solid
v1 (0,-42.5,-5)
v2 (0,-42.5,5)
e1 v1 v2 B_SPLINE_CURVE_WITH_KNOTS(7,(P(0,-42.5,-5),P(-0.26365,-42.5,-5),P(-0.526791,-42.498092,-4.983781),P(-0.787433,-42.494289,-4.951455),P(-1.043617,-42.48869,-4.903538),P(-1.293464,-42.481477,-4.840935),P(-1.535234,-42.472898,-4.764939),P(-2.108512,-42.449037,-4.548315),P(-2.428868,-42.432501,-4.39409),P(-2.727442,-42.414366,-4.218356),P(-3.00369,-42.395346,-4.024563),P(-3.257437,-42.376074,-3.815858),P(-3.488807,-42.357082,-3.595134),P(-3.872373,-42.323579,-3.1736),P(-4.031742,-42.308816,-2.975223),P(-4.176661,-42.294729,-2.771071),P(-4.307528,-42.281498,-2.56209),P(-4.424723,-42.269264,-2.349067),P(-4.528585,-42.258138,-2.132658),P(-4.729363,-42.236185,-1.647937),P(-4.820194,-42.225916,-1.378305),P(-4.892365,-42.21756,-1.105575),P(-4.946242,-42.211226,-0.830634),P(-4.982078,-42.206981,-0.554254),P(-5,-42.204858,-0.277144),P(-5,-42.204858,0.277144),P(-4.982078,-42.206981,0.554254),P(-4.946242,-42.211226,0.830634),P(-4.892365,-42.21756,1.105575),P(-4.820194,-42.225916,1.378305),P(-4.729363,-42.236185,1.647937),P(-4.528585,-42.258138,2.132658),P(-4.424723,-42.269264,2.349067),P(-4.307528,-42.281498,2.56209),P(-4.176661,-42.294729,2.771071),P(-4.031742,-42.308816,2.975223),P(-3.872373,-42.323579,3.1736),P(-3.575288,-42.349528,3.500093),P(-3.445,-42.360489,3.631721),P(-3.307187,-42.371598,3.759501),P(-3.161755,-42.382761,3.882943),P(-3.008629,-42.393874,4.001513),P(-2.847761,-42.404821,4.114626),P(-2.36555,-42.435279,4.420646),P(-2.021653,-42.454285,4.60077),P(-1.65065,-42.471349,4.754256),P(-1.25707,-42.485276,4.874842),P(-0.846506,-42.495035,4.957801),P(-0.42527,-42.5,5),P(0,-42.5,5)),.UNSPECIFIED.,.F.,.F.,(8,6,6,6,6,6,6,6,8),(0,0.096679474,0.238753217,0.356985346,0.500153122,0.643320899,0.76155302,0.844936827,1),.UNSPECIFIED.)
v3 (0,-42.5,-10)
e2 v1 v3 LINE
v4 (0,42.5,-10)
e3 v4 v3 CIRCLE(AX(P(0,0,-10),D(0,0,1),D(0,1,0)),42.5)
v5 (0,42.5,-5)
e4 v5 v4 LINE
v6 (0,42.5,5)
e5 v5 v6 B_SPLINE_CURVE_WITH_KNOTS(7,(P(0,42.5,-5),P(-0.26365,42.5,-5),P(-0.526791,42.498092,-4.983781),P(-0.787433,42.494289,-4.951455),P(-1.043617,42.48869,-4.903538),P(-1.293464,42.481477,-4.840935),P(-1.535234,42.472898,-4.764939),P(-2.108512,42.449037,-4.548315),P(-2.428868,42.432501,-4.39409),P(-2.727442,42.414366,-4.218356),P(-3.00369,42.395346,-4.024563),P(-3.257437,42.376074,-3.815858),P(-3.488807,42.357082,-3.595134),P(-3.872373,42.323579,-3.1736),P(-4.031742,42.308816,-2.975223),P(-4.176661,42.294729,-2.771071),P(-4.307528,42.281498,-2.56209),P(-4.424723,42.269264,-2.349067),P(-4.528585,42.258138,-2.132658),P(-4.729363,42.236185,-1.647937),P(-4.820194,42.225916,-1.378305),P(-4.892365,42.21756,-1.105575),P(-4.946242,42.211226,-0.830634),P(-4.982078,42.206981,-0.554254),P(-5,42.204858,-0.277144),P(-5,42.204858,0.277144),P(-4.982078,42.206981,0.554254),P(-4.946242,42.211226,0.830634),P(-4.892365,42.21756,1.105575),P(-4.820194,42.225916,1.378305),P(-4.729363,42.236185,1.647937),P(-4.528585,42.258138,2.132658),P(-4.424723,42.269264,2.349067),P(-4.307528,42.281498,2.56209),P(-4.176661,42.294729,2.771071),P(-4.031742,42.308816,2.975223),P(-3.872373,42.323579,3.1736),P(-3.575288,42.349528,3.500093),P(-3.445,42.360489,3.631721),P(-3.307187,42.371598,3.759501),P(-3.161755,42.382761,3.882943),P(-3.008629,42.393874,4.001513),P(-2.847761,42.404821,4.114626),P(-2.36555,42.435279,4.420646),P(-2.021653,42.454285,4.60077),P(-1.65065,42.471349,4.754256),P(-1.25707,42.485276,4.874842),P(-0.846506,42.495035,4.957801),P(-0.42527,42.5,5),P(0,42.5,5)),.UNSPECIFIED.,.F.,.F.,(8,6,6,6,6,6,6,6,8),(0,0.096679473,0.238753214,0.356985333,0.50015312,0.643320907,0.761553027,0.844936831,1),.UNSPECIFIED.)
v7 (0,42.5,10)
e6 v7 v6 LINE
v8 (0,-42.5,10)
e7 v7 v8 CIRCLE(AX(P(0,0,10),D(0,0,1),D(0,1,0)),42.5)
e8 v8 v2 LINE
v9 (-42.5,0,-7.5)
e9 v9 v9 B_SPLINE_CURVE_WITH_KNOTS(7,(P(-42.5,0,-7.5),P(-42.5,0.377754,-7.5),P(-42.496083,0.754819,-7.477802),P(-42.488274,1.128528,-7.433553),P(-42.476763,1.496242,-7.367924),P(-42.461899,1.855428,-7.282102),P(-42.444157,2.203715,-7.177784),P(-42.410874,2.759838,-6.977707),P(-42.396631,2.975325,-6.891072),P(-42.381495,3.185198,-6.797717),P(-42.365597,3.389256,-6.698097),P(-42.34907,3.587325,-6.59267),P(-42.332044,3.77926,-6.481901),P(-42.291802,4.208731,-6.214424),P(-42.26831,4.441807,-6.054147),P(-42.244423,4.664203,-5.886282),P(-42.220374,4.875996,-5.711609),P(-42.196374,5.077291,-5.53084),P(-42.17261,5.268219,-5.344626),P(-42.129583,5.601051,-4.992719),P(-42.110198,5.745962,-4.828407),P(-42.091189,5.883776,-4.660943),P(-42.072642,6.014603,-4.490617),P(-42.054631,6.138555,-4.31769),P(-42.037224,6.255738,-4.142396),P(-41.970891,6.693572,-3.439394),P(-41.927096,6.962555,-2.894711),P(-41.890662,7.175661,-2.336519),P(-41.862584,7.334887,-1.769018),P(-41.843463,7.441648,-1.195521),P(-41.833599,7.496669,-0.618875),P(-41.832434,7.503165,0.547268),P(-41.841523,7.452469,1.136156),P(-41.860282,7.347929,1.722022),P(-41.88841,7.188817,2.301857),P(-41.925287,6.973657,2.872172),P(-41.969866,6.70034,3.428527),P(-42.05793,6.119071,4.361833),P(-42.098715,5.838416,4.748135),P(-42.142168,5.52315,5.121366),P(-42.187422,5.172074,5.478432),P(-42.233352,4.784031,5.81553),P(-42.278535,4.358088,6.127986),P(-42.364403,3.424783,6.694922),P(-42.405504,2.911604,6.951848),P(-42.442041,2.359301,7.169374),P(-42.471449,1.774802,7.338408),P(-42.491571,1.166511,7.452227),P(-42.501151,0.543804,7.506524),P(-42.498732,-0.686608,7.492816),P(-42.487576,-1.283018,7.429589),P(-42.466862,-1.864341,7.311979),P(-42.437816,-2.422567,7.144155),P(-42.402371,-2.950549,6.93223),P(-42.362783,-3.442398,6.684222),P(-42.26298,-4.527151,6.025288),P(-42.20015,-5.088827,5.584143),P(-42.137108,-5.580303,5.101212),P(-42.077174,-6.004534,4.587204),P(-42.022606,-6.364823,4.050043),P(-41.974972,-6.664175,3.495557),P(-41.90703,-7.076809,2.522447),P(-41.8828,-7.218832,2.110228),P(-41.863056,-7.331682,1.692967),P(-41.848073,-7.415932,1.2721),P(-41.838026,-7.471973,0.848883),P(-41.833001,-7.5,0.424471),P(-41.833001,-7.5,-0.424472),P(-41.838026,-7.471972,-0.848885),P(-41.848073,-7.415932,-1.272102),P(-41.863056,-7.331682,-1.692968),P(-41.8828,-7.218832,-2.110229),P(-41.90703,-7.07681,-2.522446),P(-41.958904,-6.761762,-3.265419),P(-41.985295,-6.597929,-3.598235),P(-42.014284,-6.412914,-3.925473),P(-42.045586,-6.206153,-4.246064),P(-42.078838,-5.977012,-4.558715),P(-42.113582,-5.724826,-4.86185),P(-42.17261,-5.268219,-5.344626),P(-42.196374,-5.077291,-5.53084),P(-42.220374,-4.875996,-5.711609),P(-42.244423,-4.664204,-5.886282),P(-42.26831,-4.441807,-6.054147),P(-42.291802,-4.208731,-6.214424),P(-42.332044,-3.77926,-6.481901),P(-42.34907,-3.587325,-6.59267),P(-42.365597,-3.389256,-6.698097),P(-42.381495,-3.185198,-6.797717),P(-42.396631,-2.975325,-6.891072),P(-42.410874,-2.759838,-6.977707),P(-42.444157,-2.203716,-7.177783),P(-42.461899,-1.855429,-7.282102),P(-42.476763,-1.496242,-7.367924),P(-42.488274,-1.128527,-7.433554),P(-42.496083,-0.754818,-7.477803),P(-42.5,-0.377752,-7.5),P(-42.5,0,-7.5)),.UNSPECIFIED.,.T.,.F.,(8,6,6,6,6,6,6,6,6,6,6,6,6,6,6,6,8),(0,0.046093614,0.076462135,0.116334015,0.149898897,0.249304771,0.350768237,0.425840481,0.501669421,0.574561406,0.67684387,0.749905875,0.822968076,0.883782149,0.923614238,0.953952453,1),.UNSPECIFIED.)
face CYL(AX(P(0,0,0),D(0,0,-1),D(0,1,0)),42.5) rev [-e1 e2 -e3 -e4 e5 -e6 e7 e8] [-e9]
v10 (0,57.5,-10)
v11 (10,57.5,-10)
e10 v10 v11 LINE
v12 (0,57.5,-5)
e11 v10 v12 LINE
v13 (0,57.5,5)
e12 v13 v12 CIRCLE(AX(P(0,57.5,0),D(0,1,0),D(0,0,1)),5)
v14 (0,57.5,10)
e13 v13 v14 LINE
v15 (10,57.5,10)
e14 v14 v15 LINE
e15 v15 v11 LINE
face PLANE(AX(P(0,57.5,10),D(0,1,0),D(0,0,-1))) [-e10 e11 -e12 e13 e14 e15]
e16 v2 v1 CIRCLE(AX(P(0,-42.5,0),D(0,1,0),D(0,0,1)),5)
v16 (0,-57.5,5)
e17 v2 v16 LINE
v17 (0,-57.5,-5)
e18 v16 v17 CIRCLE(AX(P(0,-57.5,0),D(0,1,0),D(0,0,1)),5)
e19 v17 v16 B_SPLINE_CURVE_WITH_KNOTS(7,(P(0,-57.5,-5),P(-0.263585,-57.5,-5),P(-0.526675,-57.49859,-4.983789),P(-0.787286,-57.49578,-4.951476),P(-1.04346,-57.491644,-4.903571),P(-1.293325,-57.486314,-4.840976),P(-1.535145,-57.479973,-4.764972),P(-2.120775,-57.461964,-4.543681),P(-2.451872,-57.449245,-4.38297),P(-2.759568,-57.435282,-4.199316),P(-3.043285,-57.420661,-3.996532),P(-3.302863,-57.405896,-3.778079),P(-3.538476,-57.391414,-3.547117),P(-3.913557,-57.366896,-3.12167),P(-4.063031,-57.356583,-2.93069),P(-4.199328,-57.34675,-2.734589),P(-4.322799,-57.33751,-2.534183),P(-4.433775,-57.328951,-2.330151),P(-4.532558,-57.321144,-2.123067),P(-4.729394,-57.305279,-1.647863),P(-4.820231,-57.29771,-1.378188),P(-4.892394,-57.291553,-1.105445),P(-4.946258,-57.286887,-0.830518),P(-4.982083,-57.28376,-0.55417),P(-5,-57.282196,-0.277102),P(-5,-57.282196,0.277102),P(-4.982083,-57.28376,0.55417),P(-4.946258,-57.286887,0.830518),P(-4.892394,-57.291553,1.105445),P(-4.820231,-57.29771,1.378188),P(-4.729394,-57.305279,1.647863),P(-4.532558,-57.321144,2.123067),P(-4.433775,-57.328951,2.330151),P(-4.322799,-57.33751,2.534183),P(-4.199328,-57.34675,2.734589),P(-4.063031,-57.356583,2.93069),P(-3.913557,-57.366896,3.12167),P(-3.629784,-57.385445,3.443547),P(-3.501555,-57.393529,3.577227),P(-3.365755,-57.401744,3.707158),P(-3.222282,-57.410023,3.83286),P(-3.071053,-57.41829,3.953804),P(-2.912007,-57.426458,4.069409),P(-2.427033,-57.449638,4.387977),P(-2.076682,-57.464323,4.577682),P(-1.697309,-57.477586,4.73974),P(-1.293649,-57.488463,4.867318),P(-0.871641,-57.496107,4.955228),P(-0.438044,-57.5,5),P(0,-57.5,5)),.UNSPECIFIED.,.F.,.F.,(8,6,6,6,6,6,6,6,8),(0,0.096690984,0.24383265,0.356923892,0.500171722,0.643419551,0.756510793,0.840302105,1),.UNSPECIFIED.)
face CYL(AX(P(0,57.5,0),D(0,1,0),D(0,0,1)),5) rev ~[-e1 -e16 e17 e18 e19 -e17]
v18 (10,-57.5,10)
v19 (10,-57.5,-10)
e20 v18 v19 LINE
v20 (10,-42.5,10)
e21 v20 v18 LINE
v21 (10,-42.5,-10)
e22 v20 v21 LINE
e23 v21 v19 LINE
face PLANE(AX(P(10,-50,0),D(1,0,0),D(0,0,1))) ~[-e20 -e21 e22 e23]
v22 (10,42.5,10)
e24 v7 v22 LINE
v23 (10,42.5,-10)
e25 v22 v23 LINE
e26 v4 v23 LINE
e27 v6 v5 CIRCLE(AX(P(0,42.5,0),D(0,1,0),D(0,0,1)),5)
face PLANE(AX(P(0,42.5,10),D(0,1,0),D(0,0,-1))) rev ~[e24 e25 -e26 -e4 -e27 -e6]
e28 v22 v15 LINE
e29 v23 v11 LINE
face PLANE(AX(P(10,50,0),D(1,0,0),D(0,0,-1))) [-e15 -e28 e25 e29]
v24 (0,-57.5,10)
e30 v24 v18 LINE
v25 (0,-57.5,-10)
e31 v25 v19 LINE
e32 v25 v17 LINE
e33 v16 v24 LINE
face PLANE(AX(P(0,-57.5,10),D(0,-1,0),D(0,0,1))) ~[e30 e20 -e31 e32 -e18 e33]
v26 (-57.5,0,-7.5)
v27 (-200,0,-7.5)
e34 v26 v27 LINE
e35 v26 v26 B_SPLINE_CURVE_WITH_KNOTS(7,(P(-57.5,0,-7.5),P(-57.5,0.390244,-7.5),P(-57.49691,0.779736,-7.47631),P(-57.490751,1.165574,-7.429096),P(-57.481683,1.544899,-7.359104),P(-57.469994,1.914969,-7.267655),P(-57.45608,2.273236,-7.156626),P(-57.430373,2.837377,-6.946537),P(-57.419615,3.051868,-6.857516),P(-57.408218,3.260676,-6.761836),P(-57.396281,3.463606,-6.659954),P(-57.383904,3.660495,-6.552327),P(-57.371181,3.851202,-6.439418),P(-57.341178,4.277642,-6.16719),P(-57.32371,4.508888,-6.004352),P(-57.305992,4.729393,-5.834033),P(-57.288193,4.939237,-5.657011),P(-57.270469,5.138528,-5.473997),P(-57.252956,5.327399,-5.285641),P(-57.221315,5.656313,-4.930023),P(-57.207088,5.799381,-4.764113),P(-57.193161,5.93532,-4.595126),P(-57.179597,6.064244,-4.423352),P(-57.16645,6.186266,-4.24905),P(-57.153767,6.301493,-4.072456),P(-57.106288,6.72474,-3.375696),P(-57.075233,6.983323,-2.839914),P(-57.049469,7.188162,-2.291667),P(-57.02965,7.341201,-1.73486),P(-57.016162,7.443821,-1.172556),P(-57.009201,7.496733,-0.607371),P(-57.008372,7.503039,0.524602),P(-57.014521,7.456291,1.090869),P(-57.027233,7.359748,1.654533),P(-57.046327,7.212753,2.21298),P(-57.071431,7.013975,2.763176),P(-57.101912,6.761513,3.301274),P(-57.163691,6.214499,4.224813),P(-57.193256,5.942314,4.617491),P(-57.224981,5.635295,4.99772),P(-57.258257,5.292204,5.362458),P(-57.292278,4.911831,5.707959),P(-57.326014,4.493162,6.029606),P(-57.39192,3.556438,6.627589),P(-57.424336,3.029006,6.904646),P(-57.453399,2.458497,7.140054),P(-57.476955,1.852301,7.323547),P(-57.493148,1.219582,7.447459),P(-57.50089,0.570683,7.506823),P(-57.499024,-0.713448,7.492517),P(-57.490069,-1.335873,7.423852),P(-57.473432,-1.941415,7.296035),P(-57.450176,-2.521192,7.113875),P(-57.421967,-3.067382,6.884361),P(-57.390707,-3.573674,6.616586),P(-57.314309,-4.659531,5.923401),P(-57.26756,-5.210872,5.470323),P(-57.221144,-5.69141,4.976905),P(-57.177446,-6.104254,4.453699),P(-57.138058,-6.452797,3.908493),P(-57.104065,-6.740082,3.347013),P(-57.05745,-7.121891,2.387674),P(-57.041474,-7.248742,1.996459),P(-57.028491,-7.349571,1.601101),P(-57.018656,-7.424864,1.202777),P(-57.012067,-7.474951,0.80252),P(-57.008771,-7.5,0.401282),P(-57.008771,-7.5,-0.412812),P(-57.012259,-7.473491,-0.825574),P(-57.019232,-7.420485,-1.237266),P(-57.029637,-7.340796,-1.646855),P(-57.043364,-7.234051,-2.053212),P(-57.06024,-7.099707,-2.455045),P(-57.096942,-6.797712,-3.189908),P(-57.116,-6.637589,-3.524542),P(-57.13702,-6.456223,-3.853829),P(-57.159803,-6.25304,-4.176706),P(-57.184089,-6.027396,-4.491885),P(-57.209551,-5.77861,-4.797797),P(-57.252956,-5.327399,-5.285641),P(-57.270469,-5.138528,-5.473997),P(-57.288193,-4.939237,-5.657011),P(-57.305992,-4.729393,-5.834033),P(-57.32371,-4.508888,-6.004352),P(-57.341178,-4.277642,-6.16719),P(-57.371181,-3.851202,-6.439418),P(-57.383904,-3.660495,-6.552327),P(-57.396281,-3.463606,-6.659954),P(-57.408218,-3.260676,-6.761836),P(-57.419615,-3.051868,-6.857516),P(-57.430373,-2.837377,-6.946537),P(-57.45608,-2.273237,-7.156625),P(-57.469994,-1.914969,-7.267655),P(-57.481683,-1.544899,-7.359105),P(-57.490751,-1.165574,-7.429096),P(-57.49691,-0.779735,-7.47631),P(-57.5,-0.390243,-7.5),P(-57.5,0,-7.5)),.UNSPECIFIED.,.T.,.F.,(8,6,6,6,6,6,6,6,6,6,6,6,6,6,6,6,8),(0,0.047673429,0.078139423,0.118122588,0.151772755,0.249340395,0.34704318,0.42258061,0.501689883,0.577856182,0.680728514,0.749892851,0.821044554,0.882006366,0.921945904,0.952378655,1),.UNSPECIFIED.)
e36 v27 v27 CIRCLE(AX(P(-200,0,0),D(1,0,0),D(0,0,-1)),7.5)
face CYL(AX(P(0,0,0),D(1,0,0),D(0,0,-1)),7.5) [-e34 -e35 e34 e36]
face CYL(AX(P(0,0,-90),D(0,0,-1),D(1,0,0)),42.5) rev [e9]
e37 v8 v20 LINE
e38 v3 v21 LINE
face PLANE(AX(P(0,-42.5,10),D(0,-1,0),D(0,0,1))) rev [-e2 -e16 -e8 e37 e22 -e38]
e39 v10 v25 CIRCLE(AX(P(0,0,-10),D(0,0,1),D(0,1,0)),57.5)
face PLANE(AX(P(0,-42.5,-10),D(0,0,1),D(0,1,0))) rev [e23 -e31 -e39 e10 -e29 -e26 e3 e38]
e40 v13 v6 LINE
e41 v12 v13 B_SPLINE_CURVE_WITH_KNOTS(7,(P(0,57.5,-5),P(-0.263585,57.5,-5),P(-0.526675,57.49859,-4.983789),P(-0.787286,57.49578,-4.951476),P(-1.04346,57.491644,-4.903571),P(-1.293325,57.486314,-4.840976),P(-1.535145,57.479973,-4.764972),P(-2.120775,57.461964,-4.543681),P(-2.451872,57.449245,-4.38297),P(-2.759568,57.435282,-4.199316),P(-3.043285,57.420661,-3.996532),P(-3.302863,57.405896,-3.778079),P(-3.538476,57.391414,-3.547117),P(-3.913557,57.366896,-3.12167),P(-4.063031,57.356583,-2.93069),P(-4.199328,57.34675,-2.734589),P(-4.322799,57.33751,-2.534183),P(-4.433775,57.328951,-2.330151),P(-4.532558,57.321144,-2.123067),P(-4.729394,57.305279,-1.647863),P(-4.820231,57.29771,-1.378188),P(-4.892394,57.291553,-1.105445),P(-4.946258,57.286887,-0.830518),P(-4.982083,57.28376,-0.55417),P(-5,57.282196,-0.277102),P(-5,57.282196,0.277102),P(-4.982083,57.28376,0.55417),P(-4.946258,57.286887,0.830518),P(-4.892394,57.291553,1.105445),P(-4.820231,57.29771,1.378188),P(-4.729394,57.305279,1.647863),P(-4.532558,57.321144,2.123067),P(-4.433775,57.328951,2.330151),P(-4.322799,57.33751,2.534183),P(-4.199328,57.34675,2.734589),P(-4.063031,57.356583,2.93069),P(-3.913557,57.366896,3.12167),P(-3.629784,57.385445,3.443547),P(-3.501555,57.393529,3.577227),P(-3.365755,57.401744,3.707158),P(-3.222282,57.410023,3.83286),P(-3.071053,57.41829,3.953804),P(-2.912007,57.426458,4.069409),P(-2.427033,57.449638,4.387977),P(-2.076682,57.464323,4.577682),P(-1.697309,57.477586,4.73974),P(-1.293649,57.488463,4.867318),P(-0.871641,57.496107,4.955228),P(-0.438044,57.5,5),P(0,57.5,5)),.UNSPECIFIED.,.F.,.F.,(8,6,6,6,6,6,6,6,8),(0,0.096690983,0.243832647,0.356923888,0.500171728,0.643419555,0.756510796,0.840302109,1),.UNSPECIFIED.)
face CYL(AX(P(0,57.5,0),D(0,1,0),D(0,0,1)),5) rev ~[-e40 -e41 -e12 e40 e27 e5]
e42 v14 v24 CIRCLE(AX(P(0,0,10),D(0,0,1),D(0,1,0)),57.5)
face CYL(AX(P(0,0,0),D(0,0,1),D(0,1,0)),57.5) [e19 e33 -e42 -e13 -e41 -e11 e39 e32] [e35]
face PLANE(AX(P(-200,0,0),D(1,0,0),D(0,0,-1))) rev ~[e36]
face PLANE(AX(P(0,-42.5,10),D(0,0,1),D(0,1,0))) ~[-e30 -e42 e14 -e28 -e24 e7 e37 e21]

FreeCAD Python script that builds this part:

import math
import FreeCAD as App
import Part
import Sketcher


def add_polygon(sketch, points):
    """Adds a closed chain of lines whose ends are joined by coincident constraints."""
    first, n = sketch.GeometryCount, len(points)
    for a, b in zip(points, points[1:] + points[:1]):
        sketch.addGeometry(Part.LineSegment(App.Vector(*a, 0), App.Vector(*b, 0)), False)
    for i in range(n):
        sketch.addConstraint(Sketcher.Constraint("Coincident", first + i, 2, first + (i + 1) % n, 1))

doc = App.newDocument("Part")
params = doc.addObject("Spreadsheet::Sheet", "Params")
for row, (alias, value) in enumerate([
    ("sketch1_diameter", "15 mm"),
    ("pad1_length", "200 mm"),
    ("sketch2_width", "15 mm"),
    ("sketch2_height", "20 mm"),
    ("sketch3_radius", "50 mm"),
    ("sketch4_diameter", "85 mm"),
    ("pocket1_length", "100 mm"),
    ("sketch5_width", "15 mm"),
    ("sketch5_height", "20 mm"),
    ("pad2_length", "10 mm"),
    ("sketch6_diameter", "10 mm"),
], start=1):
    params.set(f"A{row}", alias)
    params.set(f"B{row}", "=" + value)
    params.setAlias(f"B{row}", alias)

body = doc.addObject("PartDesign::Body", "Body")

# Sketch on YZ plane
sketch1 = doc.addObject("Sketcher::SketchObject", "Sketch")
body.addObject(sketch1)
sketch1.AttachmentSupport = (doc.YZ_Plane, [""])
sketch1.MapMode = "FlatFace"
sketch1.addGeometry(Part.Circle(App.Vector(0, 0, 0), App.Vector(0, 0, 1), 8), False)
sketch1.addConstraint([
    Sketcher.Constraint("Coincident", 0, 3, -1, 1),
    Sketcher.Constraint("Diameter", 0, 15.0),
])
sketch1.setExpression("Constraints[1]", "Params.sketch1_diameter")
pad1 = doc.addObject("PartDesign::Pad", "Pad")
body.addObject(pad1)
pad1.Profile = sketch1
pad1.setExpression("Length", "Params.pad1_length")
pad1.Reversed = True

# Sketch on YZ plane
sketch2 = doc.addObject("Sketcher::SketchObject", "Sketch001")
body.addObject(sketch2)
sketch2.AttachmentSupport = (doc.YZ_Plane, [""])
sketch2.MapMode = "FlatFace"
add_polygon(sketch2, [(58, 10), (42, 10), (42, -10), (58, -10)])  # lines 0-3
sketch2.addConstraint([
    Sketcher.Constraint("Horizontal", 0),
    Sketcher.Constraint("Vertical", 1),
    Sketcher.Constraint("Horizontal", 2),
    Sketcher.Constraint("Vertical", 3),
    Sketcher.Constraint("DistanceX", 0, 2, 0, 1, 15.0),
    Sketcher.Constraint("DistanceY", 1, 2, 1, 1, 20.0),
    Sketcher.Constraint("DistanceY", -1, 1, 0, 2, 10.0),
    Sketcher.Constraint("DistanceX", -1, 1, 0, 2, 42.5),
])
sketch2.setExpression("Constraints[8]", "Params.sketch2_width")
sketch2.setExpression("Constraints[9]", "Params.sketch2_height")

# Sketch on XY plane
sketch3 = doc.addObject("Sketcher::SketchObject", "Sketch002")
body.addObject(sketch3)
sketch3.AttachmentSupport = (doc.XY_Plane, [""])
sketch3.MapMode = "FlatFace"
sketch3.addGeometry(Part.ArcOfCircle(Part.Circle(App.Vector(0, 0, 0), App.Vector(0, 0, 1), 50), math.radians(90), math.radians(270)), False)
sketch3.addConstraint([
    Sketcher.Constraint("Coincident", 0, 3, -1, 1),
    Sketcher.Constraint("PointOnObject", 0, 1, -2),
    Sketcher.Constraint("PointOnObject", 0, 2, -2),
    Sketcher.Constraint("Radius", 0, 50.0),
])
sketch3.setExpression("Constraints[3]", "Params.sketch3_radius")
doc.recompute()

additivepipe = doc.addObject("PartDesign::AdditivePipe", "AdditivePipe")
body.addObject(additivepipe)
additivepipe.Profile = sketch2
additivepipe.Spine = (sketch3, ["Edge1"])

# Sketch on XY plane
sketch4 = doc.addObject("Sketcher::SketchObject", "Sketch003")
body.addObject(sketch4)
sketch4.AttachmentSupport = (doc.XY_Plane, [""])
sketch4.MapMode = "FlatFace"
sketch4.AttachmentOffset = App.Placement(App.Vector(0, 0, -90), App.Rotation())
sketch4.addGeometry(Part.Circle(App.Vector(0, 0, 0), App.Vector(0, 0, 1), 42), False)
sketch4.addConstraint([
    Sketcher.Constraint("Coincident", 0, 3, -1, 1),
    Sketcher.Constraint("Diameter", 0, 85.0),
])
sketch4.setExpression("Constraints[1]", "Params.sketch4_diameter")
pocket1 = doc.addObject("PartDesign::Pocket", "Pocket")
body.addObject(pocket1)
pocket1.Profile = sketch4
pocket1.setExpression("Length", "Params.pocket1_length")
pocket1.Reversed = True

# Sketch on YZ plane
sketch5 = doc.addObject("Sketcher::SketchObject", "Sketch004")
body.addObject(sketch5)
sketch5.AttachmentSupport = (doc.YZ_Plane, [""])
sketch5.MapMode = "FlatFace"
add_polygon(sketch5, [(58, 10), (42, 10), (42, -10), (58, -10)])  # lines 0-3
sketch5.addConstraint([
    Sketcher.Constraint("Horizontal", 0),
    Sketcher.Constraint("Vertical", 1),
    Sketcher.Constraint("Horizontal", 2),
    Sketcher.Constraint("Vertical", 3),
    Sketcher.Constraint("DistanceX", 0, 2, 0, 1, 15.0),
    Sketcher.Constraint("DistanceY", 1, 2, 1, 1, 20.0),
    Sketcher.Constraint("DistanceY", -1, 1, 0, 2, 10.0),
    Sketcher.Constraint("DistanceX", -1, 1, 0, 2, 42.5),
])
sketch5.setExpression("Constraints[8]", "Params.sketch5_width")
sketch5.setExpression("Constraints[9]", "Params.sketch5_height")
pad2 = doc.addObject("PartDesign::Pad", "Pad001")
body.addObject(pad2)
pad2.Profile = sketch5
pad2.setExpression("Length", "Params.pad2_length")
doc.recompute()

mirrored = doc.addObject("PartDesign::Mirrored", "Mirrored")
body.addObject(mirrored)
mirrored.Originals = [pad2]
mirrored.MirrorPlane = (doc.XZ_Plane, [""])
body.Tip = mirrored

# Sketch on XZ plane
sketch6 = doc.addObject("Sketcher::SketchObject", "Sketch005")
body.addObject(sketch6)
sketch6.AttachmentSupport = (doc.XZ_Plane, [""])
sketch6.MapMode = "FlatFace"
sketch6.AttachmentOffset = App.Placement(App.Vector(0, 0, -57.5), App.Rotation())
sketch6.addGeometry(Part.Circle(App.Vector(0, 0, 0), App.Vector(0, 0, 1), 5), False)
sketch6.addConstraint([
    Sketcher.Constraint("Coincident", 0, 3, -1, 1),
    Sketcher.Constraint("Diameter", 0, 10.0),
])
sketch6.setExpression("Constraints[1]", "Params.sketch6_diameter")
pocket2 = doc.addObject("PartDesign::Pocket", "Pocket001")
body.addObject(pocket2)
pocket2.Profile = sketch6
pocket2.Type = "ThroughAll"
pocket2.Reversed = True

doc.recompute()
